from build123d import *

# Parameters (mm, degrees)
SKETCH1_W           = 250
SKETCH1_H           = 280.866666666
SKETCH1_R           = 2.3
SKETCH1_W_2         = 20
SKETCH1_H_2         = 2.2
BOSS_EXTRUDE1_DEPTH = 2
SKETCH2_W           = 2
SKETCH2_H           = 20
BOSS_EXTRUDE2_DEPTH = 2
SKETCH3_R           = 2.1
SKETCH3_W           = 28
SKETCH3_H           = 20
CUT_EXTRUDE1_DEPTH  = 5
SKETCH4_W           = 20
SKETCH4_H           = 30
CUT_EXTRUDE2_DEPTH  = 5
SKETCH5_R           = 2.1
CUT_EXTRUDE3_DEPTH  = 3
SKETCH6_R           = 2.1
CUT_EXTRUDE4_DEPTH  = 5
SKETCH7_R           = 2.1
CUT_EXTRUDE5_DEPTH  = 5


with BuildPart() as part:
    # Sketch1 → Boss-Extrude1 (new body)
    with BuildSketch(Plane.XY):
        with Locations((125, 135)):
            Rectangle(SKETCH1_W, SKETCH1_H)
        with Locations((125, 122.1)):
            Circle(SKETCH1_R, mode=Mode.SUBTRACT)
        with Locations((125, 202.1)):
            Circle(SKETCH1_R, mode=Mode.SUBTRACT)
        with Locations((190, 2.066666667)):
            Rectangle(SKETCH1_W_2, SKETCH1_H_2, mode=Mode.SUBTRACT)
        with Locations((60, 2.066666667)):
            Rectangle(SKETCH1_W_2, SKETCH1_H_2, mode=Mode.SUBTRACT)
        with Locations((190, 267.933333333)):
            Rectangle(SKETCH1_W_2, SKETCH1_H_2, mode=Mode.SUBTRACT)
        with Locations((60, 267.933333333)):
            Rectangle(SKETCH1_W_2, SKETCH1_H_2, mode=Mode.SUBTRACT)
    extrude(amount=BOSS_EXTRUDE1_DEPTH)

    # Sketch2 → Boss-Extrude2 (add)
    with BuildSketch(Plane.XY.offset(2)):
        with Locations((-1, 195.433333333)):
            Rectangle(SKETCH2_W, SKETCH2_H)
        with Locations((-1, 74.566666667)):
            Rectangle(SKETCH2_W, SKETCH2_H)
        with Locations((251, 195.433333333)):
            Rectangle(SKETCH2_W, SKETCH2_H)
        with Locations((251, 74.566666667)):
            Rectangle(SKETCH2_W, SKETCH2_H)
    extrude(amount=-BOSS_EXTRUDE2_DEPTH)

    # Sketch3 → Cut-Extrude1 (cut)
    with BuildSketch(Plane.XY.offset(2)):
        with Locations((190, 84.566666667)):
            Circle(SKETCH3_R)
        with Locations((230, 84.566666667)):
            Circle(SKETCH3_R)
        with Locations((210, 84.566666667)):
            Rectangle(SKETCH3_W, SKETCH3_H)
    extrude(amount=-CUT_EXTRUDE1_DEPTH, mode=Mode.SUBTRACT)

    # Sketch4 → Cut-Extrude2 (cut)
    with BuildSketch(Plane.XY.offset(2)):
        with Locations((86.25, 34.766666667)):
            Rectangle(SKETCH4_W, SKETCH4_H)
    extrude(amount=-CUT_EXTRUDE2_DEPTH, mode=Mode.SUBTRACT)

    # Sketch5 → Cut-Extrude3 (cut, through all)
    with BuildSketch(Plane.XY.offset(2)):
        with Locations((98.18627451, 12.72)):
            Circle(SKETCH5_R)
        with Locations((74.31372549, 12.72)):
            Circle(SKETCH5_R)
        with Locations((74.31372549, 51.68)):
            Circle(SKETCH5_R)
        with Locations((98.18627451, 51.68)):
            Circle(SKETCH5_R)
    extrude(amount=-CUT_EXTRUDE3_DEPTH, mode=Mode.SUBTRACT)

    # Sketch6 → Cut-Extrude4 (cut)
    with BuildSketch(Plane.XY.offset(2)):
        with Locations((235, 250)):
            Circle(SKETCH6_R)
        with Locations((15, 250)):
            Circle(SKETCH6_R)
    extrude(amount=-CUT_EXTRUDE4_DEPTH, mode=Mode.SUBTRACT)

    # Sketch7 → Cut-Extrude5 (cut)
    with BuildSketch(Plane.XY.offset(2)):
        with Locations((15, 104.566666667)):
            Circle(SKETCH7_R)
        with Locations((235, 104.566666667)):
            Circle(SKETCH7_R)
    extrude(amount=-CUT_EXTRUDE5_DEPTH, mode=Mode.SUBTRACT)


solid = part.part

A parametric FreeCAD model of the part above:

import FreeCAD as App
import Part
import Sketcher
from FreeCAD import Vector
Q = App.Units.Quantity

doc = App.newDocument("Part")
body = doc.addObject("PartDesign::Body", "Body")

sketch1 = body.newObject("Sketcher::SketchObject", "Sketch")
sketch1.AttachmentSupport = (doc.getObject("XY_Plane"), [""])
sketch1.MapMode = "FlatFace"
sketch1.addGeometry([
    Part.LineSegment(Vector(0, 275.433333, 0), Vector(0, -5.433333, 0)),
    Part.LineSegment(Vector(0, -5.433333, 0), Vector(250, -5.433333, 0)),
    Part.LineSegment(Vector(250, -5.433333, 0), Vector(250, 275.433333, 0)),
    Part.LineSegment(Vector(250, 275.433333, 0), Vector(0, 275.433333, 0)),
    Part.LineSegment(Vector(70, 0.966667, 0), Vector(50, 0.966667, 0)),
    Part.LineSegment(Vector(50, 0.966667, 0), Vector(50, 3.166667, 0)),
    Part.LineSegment(Vector(50, 3.166667, 0), Vector(70, 3.166667, 0)),
    Part.LineSegment(Vector(70, 3.166667, 0), Vector(70, 0.966667, 0)),
    Part.LineSegment(Vector(200, 0.966667, 0), Vector(180, 0.966667, 0)),
    Part.LineSegment(Vector(180, 0.966667, 0), Vector(180, 3.166667, 0)),
    Part.LineSegment(Vector(180, 3.166667, 0), Vector(200, 3.166667, 0)),
    Part.LineSegment(Vector(200, 3.166667, 0), Vector(200, 0.966667, 0)),
    Part.Circle(Vector(125, 122.1, 0), Vector(0, 0, 1), 2.3),
    Part.LineSegment(Vector(70, 266.833333, 0), Vector(50, 266.833333, 0)),
    Part.LineSegment(Vector(50, 266.833333, 0), Vector(50, 269.033333, 0)),
    Part.LineSegment(Vector(50, 269.033333, 0), Vector(70, 269.033333, 0)),
    Part.LineSegment(Vector(70, 269.033333, 0), Vector(70, 266.833333, 0)),
    Part.Circle(Vector(125, 202.1, 0), Vector(0, 0, 1), 2.3),
    Part.LineSegment(Vector(200, 266.833333, 0), Vector(180, 266.833333, 0)),
    Part.LineSegment(Vector(180, 266.833333, 0), Vector(180, 269.033333, 0)),
    Part.LineSegment(Vector(180, 269.033333, 0), Vector(200, 269.033333, 0)),
    Part.LineSegment(Vector(200, 269.033333, 0), Vector(200, 266.833333, 0)),
], False)
sketch1.addConstraint([
    Sketcher.Constraint("Coincident", 0, 2, 1, 1),
    Sketcher.Constraint("Coincident", 1, 2, 2, 1),
    Sketcher.Constraint("Coincident", 2, 2, 3, 1),
    Sketcher.Constraint("Coincident", 3, 2, 0, 1),
    Sketcher.Constraint("Coincident", 4, 2, 5, 1),
    Sketcher.Constraint("Coincident", 5, 2, 6, 1),
    Sketcher.Constraint("Coincident", 6, 2, 7, 1),
    Sketcher.Constraint("Coincident", 7, 2, 4, 1),
    Sketcher.Constraint("Coincident", 8, 2, 9, 1),
    Sketcher.Constraint("Coincident", 9, 2, 10, 1),
    Sketcher.Constraint("Coincident", 10, 2, 11, 1),
    Sketcher.Constraint("Coincident", 11, 2, 8, 1),
    Sketcher.Constraint("Coincident", 13, 2, 14, 1),
    Sketcher.Constraint("Coincident", 14, 2, 15, 1),
    Sketcher.Constraint("Coincident", 15, 2, 16, 1),
    Sketcher.Constraint("Coincident", 16, 2, 13, 1),
    Sketcher.Constraint("Coincident", 18, 2, 19, 1),
    Sketcher.Constraint("Coincident", 19, 2, 20, 1),
    Sketcher.Constraint("Coincident", 20, 2, 21, 1),
    Sketcher.Constraint("Coincident", 21, 2, 18, 1),
    Sketcher.Constraint("Vertical", 0),
    Sketcher.Constraint("Horizontal", 1),
    Sketcher.Constraint("Vertical", 2),
    Sketcher.Constraint("Horizontal", 3),
    Sketcher.Constraint("Horizontal", 4),
    Sketcher.Constraint("Vertical", 5),
    Sketcher.Constraint("Horizontal", 6),
    Sketcher.Constraint("Vertical", 7),
    Sketcher.Constraint("Horizontal", 8),
    Sketcher.Constraint("Vertical", 9),
    Sketcher.Constraint("Horizontal", 10),
    Sketcher.Constraint("Vertical", 11),
    Sketcher.Constraint("Horizontal", 13),
    Sketcher.Constraint("Vertical", 14),
    Sketcher.Constraint("Horizontal", 15),
    Sketcher.Constraint("Vertical", 16),
    Sketcher.Constraint("Horizontal", 18),
    Sketcher.Constraint("Vertical", 19),
    Sketcher.Constraint("Horizontal", 20),
    Sketcher.Constraint("Vertical", 21),
    Sketcher.Constraint("Equal", 12, 17),
    Sketcher.Constraint("PointOnObject", 0, 2, -2),
    Sketcher.Constraint("Horizontal", 7, 2, 8, 2),
    Sketcher.Constraint("Horizontal", 6, 2, 9, 2),
    Sketcher.Constraint("Horizontal", 16, 2, 18, 2),
    Sketcher.Constraint("Horizontal", 15, 2, 19, 2),
    Sketcher.Constraint("Vertical", 12, 3, 17, 3),
    Sketcher.Constraint("Vertical", 5, 2, 13, 2),
    Sketcher.Constraint("Vertical", 7, 2, 15, 2),
    Sketcher.Constraint("Vertical", 9, 2, 18, 2),
    Sketcher.Constraint("Vertical", 11, 2, 20, 2),
    Sketcher.Constraint("Equal", 6, 8),
    Sketcher.Constraint("Equal", 11, 14),
    Sketcher.Constraint("Diameter", 12, Q("4.6 mm")),
    Sketcher.Constraint("DistanceX", 1, 1, 1, 2, Q("250 mm")),
    Sketcher.Constraint("DistanceX", 4, 2, 4, 1, Q("20 mm")),
    Sketcher.Constraint("DistanceY", 5, 1, 5, 2, Q("2.2 mm")),
    Sketcher.Constraint("DistanceX", -1, 1, 12, 3, Q("125 mm")),
    Sketcher.Constraint("DistanceX", -1, 1, 4, 2, Q("50 mm")),
    Sketcher.Constraint("DistanceX", -1, 1, 8, 2, Q("180 mm")),
    Sketcher.Constraint("DistanceY", 12, 3, 17, 3, Q("80 mm")),
    Sketcher.Constraint("DistanceY", -1, 1, 12, 3, Q("122.1 mm")),
    Sketcher.Constraint("DistanceY", 0, 2, 4, 2, Q("6.4 mm")),
    Sketcher.Constraint("DistanceY", 13, 2, 3, 2, Q("8.6 mm")),
    Sketcher.Constraint("DistanceY", 0, 2, 0, 1, Q("280.866667 mm")),
    Sketcher.Constraint("DistanceY", 0, 2, -1, 1, Q("5.433333 mm")),
])
pad1 = body.newObject("PartDesign::Pad", "Pad")
pad1.Profile = sketch1
pad1.Length = 2

sketch2 = body.newObject("Sketcher::SketchObject", "Sketch001")
sketch2.AttachmentSupport = (doc.getObject("XY_Plane"), [""])
sketch2.MapMode = "FlatFace"
sketch2.AttachmentOffset = App.Placement(Vector(0, 0, 2), App.Rotation())
sketch2.addGeometry([
    Part.LineSegment(Vector(-2, 205.433333, 0), Vector(-2, 185.433333, 0)),
    Part.LineSegment(Vector(-2, 185.433333, 0), Vector(0, 185.433333, 0)),
    Part.LineSegment(Vector(0, 185.433333, 0), Vector(0, 205.433333, 0)),
    Part.LineSegment(Vector(0, 205.433333, 0), Vector(-2, 205.433333, 0)),
    Part.LineSegment(Vector(-2, 84.566667, 0), Vector(-2, 64.566667, 0)),
    Part.LineSegment(Vector(-2, 64.566667, 0), Vector(0, 64.566667, 0)),
    Part.LineSegment(Vector(0, 64.566667, 0), Vector(0, 84.566667, 0)),
    Part.LineSegment(Vector(0, 84.566667, 0), Vector(-2, 84.566667, 0)),
    Part.LineSegment(Vector(250, 205.433333, 0), Vector(250, 185.433333, 0)),
    Part.LineSegment(Vector(250, 185.433333, 0), Vector(252, 185.433333, 0)),
    Part.LineSegment(Vector(252, 185.433333, 0), Vector(252, 205.433333, 0)),
    Part.LineSegment(Vector(252, 205.433333, 0), Vector(250, 205.433333, 0)),
    Part.LineSegment(Vector(250, 84.566667, 0), Vector(250, 64.566667, 0)),
    Part.LineSegment(Vector(250, 64.566667, 0), Vector(252, 64.566667, 0)),
    Part.LineSegment(Vector(252, 64.566667, 0), Vector(252, 84.566667, 0)),
    Part.LineSegment(Vector(252, 84.566667, 0), Vector(250, 84.566667, 0)),
], False)
sketch2.addConstraint([
    Sketcher.Constraint("Coincident", 0, 2, 1, 1),
    Sketcher.Constraint("Coincident", 1, 2, 2, 1),
    Sketcher.Constraint("Coincident", 2, 2, 3, 1),
    Sketcher.Constraint("Coincident", 3, 2, 0, 1),
    Sketcher.Constraint("Coincident", 4, 2, 5, 1),
    Sketcher.Constraint("Coincident", 5, 2, 6, 1),
    Sketcher.Constraint("Coincident", 6, 2, 7, 1),
    Sketcher.Constraint("Coincident", 7, 2, 4, 1),
    Sketcher.Constraint("Coincident", 8, 2, 9, 1),
    Sketcher.Constraint("Coincident", 9, 2, 10, 1),
    Sketcher.Constraint("Coincident", 10, 2, 11, 1),
    Sketcher.Constraint("Coincident", 11, 2, 8, 1),
    Sketcher.Constraint("Coincident", 12, 2, 13, 1),
    Sketcher.Constraint("Coincident", 13, 2, 14, 1),
    Sketcher.Constraint("Coincident", 14, 2, 15, 1),
    Sketcher.Constraint("Coincident", 15, 2, 12, 1),
    Sketcher.Constraint("Vertical", 0),
    Sketcher.Constraint("Horizontal", 1),
    Sketcher.Constraint("Vertical", 2),
    Sketcher.Constraint("Horizontal", 3),
    Sketcher.Constraint("Vertical", 4),
    Sketcher.Constraint("Horizontal", 5),
    Sketcher.Constraint("Vertical", 6),
    Sketcher.Constraint("Horizontal", 7),
    Sketcher.Constraint("Vertical", 8),
    Sketcher.Constraint("Horizontal", 9),
    Sketcher.Constraint("Vertical", 10),
    Sketcher.Constraint("Horizontal", 11),
    Sketcher.Constraint("Vertical", 12),
    Sketcher.Constraint("Horizontal", 13),
    Sketcher.Constraint("Vertical", 14),
    Sketcher.Constraint("Horizontal", 15),
    Sketcher.Constraint("PointOnObject", 1, 2, -2),
    Sketcher.Constraint("PointOnObject", 5, 2, -2),
    Sketcher.Constraint("Horizontal", 1, 2, 8, 2),
    Sketcher.Constraint("Horizontal", 3, 2, 10, 2),
    Sketcher.Constraint("Horizontal", 5, 2, 12, 2),
    Sketcher.Constraint("Horizontal", 7, 2, 14, 2),
    Sketcher.Constraint("Vertical", 3, 2, 4, 2),
    Sketcher.Constraint("Vertical", 11, 2, 12, 2),
    Sketcher.Constraint("Vertical", 10, 2, 13, 2),
    Sketcher.Constraint("Equal", 7, 9),
    Sketcher.Constraint("Equal", 2, 4),
    Sketcher.Constraint("DistanceX", 1, 1, 1, 2, Q("2 mm")),
    Sketcher.Constraint("DistanceY", 0, 2, 0, 1, Q("20 mm")),
    Sketcher.Constraint("DistanceX", -1, 1, 8, 2, Q("250 mm")),
    Sketcher.Constraint("DistanceY", -1, 1, 0, 2, Q("185.433333 mm")),
    Sketcher.Constraint("DistanceY", -1, 1, 4, 2, Q("64.566667 mm")),
])
pad2 = body.newObject("PartDesign::Pad", "Pad001")
pad2.Profile = sketch2
pad2.Length = 2
pad2.Reversed = True

sketch3 = body.newObject("Sketcher::SketchObject", "Sketch002")
sketch3.AttachmentSupport = (doc.getObject("XY_Plane"), [""])
sketch3.MapMode = "FlatFace"
sketch3.AttachmentOffset = App.Placement(Vector(0, 0, 2), App.Rotation())
sketch3.addGeometry([
    Part.Circle(Vector(190, 84.566667, 0), Vector(0, 0, 1), 2.1),
    Part.Circle(Vector(230, 84.566667, 0), Vector(0, 0, 1), 2.1),
    Part.LineSegment(Vector(196, 94.566667, 0), Vector(196, 74.566667, 0)),
    Part.LineSegment(Vector(196, 74.566667, 0), Vector(224, 74.566667, 0)),
    Part.LineSegment(Vector(224, 74.566667, 0), Vector(224, 94.566667, 0)),
    Part.LineSegment(Vector(224, 94.566667, 0), Vector(196, 94.566667, 0)),
], False)
sketch3.addConstraint([
    Sketcher.Constraint("Coincident", 2, 2, 3, 1),
    Sketcher.Constraint("Coincident", 3, 2, 4, 1),
    Sketcher.Constraint("Coincident", 4, 2, 5, 1),
    Sketcher.Constraint("Coincident", 5, 2, 2, 1),
    Sketcher.Constraint("Vertical", 2),
    Sketcher.Constraint("Horizontal", 3),
    Sketcher.Constraint("Vertical", 4),
    Sketcher.Constraint("Horizontal", 5),
    Sketcher.Constraint("Equal", 0, 1),
    Sketcher.Constraint("Horizontal", 0, 3, 1, 3),
    Sketcher.Constraint("Diameter", 0, Q("4.2 mm")),
    Sketcher.Constraint("DistanceX", 3, 1, 3, 2, Q("28 mm")),
    Sketcher.Constraint("DistanceY", 2, 2, 2, 1, Q("20 mm")),
    Sketcher.Constraint("DistanceX", -1, 1, 0, 3, Q("190 mm")),
    Sketcher.Constraint("DistanceX", -1, 1, 1, 3, Q("230 mm")),
    Sketcher.Constraint("DistanceX", -1, 1, 2, 2, Q("196 mm")),
    Sketcher.Constraint("DistanceY", 2, 2, 0, 3, Q("10 mm")),
    Sketcher.Constraint("DistanceY", -1, 1, 0, 3, Q("84.566667 mm")),
])
pocket1 = body.newObject("PartDesign::Pocket", "Pocket")
pocket1.Profile = sketch3
pocket1.Length = 5

sketch4 = body.newObject("Sketcher::SketchObject", "Sketch003")
sketch4.AttachmentSupport = (doc.getObject("XY_Plane"), [""])
sketch4.MapMode = "FlatFace"
sketch4.AttachmentOffset = App.Placement(Vector(0, 0, 2), App.Rotation())
sketch4.addGeometry([
    Part.LineSegment(Vector(76.25, 49.766667, 0), Vector(76.25, 19.766667, 0)),
    Part.LineSegment(Vector(76.25, 19.766667, 0), Vector(96.25, 19.766667, 0)),
    Part.LineSegment(Vector(96.25, 19.766667, 0), Vector(96.25, 49.766667, 0)),
    Part.LineSegment(Vector(96.25, 49.766667, 0), Vector(76.25, 49.766667, 0)),
], False)
sketch4.addConstraint([
    Sketcher.Constraint("Coincident", 0, 2, 1, 1),
    Sketcher.Constraint("Coincident", 1, 2, 2, 1),
    Sketcher.Constraint("Coincident", 2, 2, 3, 1),
    Sketcher.Constraint("Coincident", 3, 2, 0, 1),
    Sketcher.Constraint("Vertical", 0),
    Sketcher.Constraint("Horizontal", 1),
    Sketcher.Constraint("Vertical", 2),
    Sketcher.Constraint("Horizontal", 3),
    Sketcher.Constraint("DistanceX", 1, 1, 1, 2, Q("20 mm")),
    Sketcher.Constraint("DistanceY", 0, 2, 0, 1, Q("30 mm")),
    Sketcher.Constraint("DistanceX", -1, 1, 0, 2, Q("76.25 mm")),
    Sketcher.Constraint("DistanceY", -1, 1, 0, 2, Q("19.766667 mm")),
])
pocket2 = body.newObject("PartDesign::Pocket", "Pocket001")
pocket2.Profile = sketch4
pocket2.Length = 5

sketch5 = body.newObject("Sketcher::SketchObject", "Sketch004")
sketch5.AttachmentSupport = (doc.getObject("XY_Plane"), [""])
sketch5.MapMode = "FlatFace"
sketch5.AttachmentOffset = App.Placement(Vector(0, 0, 2), App.Rotation())
sketch5.addGeometry([
    Part.Circle(Vector(98.186275, 12.72, 0), Vector(0, 0, 1), 2.1),
    Part.Circle(Vector(74.313725, 12.72, 0), Vector(0, 0, 1), 2.1),
    Part.Circle(Vector(74.313725, 51.68, 0), Vector(0, 0, 1), 2.1),
    Part.Circle(Vector(98.186275, 51.68, 0), Vector(0, 0, 1), 2.1),
], False)
sketch5.addConstraint([
    Sketcher.Constraint("Equal", 0, 1),
    Sketcher.Constraint("Equal", 1, 2),
    Sketcher.Constraint("Equal", 2, 3),
    Sketcher.Constraint("Horizontal", 0, 3, 1, 3),
    Sketcher.Constraint("Horizontal", 2, 3, 3, 3),
    Sketcher.Constraint("Vertical", 1, 3, 2, 3),
    Sketcher.Constraint("Vertical", 0, 3, 3, 3),
    Sketcher.Constraint("Diameter", 0, Q("4.2 mm")),
    Sketcher.Constraint("DistanceY", -1, 1, 0, 3, Q("12.72 mm")),
    Sketcher.Constraint("DistanceY", -1, 1, 2, 3, Q("51.68 mm")),
    Sketcher.Constraint("DistanceX", 1, 3, 0, 3, Q("23.872549 mm")),
    Sketcher.Constraint("DistanceX", -1, 1, 0, 3, Q("98.186275 mm")),
])
pocket3 = body.newObject("PartDesign::Pocket", "Pocket002")
pocket3.Profile = sketch5
pocket3.Type = "ThroughAll"

sketch6 = body.newObject("Sketcher::SketchObject", "Sketch005")
sketch6.AttachmentSupport = (doc.getObject("XY_Plane"), [""])
sketch6.MapMode = "FlatFace"
sketch6.AttachmentOffset = App.Placement(Vector(0, 0, 2), App.Rotation())
sketch6.addGeometry([
    Part.Circle(Vector(235, 250, 0), Vector(0, 0, 1), 2.1),
    Part.Circle(Vector(15, 250, 0), Vector(0, 0, 1), 2.1),
], False)
sketch6.addConstraint([
    Sketcher.Constraint("Equal", 0, 1),
    Sketcher.Constraint("Horizontal", 0, 3, 1, 3),
    Sketcher.Constraint("Diameter", 0, Q("4.2 mm")),
    Sketcher.Constraint("DistanceX", -1, 1, 0, 3, Q("235 mm")),
    Sketcher.Constraint("DistanceY", -1, 1, 0, 3, Q("250 mm")),
    Sketcher.Constraint("DistanceX", -1, 1, 1, 3, Q("15 mm")),
])
pocket4 = body.newObject("PartDesign::Pocket", "Pocket003")
pocket4.Profile = sketch6
pocket4.Length = 5

sketch7 = body.newObject("Sketcher::SketchObject", "Sketch006")
sketch7.AttachmentSupport = (doc.getObject("XY_Plane"), [""])
sketch7.MapMode = "FlatFace"
sketch7.AttachmentOffset = App.Placement(Vector(0, 0, 2), App.Rotation())
sketch7.addGeometry([
    Part.Circle(Vector(15, 104.566667, 0), Vector(0, 0, 1), 2.1),
    Part.Circle(Vector(235, 104.566667, 0), Vector(0, 0, 1), 2.1),
], False)
sketch7.addConstraint([
    Sketcher.Constraint("Equal", 0, 1),
    Sketcher.Constraint("Horizontal", 0, 3, 1, 3),
    Sketcher.Constraint("Diameter", 0, Q("4.2 mm")),
    Sketcher.Constraint("DistanceX", -1, 1, 0, 3, Q("15 mm")),
    Sketcher.Constraint("DistanceX", -1, 1, 1, 3, Q("235 mm")),
    Sketcher.Constraint("DistanceY", -1, 1, 0, 3, Q("104.566667 mm")),
])
pocket5 = body.newObject("PartDesign::Pocket", "Pocket004")
pocket5.Profile = sketch7
pocket5.Length = 5

doc.recompute()
